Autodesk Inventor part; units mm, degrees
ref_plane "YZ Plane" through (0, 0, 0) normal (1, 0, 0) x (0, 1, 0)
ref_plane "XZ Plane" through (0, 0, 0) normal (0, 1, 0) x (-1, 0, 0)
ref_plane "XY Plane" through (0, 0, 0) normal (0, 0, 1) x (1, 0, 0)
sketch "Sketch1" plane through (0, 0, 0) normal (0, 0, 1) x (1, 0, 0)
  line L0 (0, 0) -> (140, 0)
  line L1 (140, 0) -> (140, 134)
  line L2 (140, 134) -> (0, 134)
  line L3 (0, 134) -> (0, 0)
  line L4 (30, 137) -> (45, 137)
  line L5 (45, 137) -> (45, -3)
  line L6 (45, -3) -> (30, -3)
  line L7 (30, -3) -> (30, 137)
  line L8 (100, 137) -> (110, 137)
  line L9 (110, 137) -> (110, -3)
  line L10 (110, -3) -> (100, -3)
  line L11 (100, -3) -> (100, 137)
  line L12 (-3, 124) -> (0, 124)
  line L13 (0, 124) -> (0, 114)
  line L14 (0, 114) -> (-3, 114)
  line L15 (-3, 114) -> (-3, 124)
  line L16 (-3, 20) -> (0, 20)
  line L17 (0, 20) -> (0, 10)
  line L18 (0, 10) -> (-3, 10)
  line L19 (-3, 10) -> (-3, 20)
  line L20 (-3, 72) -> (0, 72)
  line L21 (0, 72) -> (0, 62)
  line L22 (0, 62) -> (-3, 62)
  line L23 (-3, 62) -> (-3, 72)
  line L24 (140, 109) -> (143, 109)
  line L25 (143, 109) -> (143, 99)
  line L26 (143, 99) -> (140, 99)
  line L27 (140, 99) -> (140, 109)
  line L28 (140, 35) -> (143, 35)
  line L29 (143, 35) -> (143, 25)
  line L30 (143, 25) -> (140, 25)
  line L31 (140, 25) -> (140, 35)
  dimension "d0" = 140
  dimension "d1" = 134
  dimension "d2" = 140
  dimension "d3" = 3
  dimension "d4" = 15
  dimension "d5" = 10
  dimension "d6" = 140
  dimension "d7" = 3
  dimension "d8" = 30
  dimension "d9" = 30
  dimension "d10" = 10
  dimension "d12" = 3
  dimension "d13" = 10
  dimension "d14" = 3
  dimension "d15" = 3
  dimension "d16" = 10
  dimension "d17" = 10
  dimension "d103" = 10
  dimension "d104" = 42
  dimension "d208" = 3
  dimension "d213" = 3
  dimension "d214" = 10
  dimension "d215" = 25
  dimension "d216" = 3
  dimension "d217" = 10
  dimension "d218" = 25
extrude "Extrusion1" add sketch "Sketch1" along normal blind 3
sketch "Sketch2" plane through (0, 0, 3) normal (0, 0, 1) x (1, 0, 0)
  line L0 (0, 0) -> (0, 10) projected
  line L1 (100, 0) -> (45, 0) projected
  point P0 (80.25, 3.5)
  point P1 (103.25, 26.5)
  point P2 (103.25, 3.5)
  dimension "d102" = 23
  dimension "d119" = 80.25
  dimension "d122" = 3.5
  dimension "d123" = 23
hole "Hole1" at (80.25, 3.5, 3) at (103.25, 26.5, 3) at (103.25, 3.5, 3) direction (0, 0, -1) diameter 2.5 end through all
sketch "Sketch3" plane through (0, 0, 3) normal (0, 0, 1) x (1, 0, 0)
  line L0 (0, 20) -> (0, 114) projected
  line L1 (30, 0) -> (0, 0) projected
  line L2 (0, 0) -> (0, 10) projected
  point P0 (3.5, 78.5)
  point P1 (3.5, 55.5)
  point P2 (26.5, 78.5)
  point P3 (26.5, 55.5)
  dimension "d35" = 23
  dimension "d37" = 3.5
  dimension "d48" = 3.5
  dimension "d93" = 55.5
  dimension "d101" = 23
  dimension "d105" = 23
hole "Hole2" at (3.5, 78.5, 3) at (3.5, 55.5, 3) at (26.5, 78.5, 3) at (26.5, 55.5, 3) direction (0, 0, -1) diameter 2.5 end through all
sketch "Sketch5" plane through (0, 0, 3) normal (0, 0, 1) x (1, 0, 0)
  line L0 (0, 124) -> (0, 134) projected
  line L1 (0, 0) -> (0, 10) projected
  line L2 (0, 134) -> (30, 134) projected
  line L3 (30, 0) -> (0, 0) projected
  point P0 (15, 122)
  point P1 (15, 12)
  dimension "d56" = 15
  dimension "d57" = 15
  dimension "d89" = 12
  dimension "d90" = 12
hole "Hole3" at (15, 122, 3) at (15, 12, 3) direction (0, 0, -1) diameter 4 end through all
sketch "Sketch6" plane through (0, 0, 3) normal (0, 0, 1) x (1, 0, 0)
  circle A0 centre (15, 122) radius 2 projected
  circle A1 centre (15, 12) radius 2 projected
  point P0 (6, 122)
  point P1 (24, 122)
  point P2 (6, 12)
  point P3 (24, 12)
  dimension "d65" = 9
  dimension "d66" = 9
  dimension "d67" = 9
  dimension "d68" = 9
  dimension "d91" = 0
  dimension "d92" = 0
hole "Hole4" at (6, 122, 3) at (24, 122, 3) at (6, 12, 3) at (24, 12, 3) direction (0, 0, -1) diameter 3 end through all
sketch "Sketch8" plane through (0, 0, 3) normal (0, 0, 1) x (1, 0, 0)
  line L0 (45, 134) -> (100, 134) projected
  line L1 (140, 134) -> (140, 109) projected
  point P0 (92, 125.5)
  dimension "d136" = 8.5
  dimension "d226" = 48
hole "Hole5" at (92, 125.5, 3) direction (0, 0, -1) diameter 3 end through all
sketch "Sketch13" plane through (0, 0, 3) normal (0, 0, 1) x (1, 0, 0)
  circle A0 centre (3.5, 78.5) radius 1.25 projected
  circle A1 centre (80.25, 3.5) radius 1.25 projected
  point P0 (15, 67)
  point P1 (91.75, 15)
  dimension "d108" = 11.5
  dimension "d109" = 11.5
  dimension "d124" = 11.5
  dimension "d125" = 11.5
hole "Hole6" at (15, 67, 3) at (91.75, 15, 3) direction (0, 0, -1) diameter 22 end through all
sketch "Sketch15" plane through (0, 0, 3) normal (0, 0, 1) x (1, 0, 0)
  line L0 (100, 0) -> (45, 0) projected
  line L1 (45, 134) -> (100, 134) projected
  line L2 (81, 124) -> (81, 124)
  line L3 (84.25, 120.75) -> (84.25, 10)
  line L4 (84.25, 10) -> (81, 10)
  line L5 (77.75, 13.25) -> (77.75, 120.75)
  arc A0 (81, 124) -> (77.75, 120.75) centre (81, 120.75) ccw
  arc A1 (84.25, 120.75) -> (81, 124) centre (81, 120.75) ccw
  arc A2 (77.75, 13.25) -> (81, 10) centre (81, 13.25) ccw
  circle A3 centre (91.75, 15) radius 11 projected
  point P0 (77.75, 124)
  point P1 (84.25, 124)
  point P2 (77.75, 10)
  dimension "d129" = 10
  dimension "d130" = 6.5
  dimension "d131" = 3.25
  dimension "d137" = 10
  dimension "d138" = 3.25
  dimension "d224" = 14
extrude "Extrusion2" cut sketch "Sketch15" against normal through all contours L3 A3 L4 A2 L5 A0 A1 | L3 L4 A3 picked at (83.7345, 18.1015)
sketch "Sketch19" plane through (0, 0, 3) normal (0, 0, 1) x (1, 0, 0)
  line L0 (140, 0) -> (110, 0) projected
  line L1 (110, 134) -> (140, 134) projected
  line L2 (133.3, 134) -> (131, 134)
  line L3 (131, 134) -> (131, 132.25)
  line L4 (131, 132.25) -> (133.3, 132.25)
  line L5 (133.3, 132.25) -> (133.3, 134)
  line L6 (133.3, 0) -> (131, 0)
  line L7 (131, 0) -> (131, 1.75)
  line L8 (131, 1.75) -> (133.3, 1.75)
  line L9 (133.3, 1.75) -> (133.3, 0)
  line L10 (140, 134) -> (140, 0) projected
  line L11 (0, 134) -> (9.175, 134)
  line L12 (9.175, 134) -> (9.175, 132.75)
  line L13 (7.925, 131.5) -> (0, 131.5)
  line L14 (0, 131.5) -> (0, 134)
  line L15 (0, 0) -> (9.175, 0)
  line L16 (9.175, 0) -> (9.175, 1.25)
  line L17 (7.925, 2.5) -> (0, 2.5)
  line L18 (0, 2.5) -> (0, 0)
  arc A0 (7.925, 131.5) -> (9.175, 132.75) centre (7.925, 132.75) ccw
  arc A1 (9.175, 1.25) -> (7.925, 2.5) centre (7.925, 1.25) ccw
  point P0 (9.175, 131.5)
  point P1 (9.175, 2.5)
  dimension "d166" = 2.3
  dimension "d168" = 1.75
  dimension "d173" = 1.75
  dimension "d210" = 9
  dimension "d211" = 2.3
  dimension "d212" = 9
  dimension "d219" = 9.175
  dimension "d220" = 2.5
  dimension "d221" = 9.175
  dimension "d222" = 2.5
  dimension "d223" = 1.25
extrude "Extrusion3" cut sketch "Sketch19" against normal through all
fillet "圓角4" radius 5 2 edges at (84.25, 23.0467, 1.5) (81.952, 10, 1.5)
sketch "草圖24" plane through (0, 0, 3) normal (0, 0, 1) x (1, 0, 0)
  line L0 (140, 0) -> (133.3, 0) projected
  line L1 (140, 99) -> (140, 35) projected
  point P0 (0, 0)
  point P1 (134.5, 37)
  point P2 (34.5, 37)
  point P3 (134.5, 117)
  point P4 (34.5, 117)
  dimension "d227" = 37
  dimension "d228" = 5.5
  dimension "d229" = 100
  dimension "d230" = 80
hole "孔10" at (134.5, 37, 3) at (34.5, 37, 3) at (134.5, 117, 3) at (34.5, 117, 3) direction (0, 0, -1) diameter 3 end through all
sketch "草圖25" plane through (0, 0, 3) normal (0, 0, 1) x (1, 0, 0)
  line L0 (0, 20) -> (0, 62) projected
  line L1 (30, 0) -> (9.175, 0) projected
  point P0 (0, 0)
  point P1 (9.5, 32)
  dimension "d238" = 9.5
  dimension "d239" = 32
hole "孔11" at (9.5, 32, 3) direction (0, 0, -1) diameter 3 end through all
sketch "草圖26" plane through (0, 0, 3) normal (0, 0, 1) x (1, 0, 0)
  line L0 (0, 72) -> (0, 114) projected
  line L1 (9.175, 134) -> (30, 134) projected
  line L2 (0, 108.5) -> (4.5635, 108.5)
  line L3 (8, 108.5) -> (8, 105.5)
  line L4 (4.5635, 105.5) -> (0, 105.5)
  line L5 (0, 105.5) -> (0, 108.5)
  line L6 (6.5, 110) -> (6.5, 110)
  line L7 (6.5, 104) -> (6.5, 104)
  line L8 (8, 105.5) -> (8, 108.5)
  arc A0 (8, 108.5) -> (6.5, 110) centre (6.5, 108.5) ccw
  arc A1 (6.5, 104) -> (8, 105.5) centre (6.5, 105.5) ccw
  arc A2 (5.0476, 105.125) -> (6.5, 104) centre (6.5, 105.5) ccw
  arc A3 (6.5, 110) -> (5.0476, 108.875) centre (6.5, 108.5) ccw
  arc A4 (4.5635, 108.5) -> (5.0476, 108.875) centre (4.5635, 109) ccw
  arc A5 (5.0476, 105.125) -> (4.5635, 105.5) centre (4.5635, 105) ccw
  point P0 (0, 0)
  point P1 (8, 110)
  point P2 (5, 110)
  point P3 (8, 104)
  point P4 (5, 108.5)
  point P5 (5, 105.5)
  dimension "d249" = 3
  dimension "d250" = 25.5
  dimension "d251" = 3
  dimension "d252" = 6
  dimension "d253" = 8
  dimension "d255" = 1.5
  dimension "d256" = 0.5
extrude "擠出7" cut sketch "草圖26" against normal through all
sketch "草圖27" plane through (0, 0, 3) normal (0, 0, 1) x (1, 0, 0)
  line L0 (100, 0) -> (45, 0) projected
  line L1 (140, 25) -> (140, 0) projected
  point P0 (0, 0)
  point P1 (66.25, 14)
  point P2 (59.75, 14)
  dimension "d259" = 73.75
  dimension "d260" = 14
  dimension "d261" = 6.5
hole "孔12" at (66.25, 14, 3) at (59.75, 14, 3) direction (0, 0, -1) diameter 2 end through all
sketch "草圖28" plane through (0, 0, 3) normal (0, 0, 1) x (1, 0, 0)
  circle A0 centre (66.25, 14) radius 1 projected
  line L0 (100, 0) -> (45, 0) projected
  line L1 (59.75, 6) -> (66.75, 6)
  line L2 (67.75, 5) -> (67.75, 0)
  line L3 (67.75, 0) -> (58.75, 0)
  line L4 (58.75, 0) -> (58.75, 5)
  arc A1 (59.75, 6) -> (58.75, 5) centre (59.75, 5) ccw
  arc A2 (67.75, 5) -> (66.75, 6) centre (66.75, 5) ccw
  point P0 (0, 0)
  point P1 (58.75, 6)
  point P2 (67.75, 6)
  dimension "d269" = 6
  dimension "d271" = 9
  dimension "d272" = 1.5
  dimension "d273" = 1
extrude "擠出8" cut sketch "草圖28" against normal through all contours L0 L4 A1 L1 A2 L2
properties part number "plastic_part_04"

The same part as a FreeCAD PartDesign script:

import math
import FreeCAD as App
import Part
import Sketcher

V = App.Vector
Q = App.Units.Quantity


def edges_at(feature, points):
    """Names of the edges that pass closest to the given points."""
    edges = feature.Shape.Edges
    near = lambda p: min(range(len(edges)), key=lambda i: edges[i].distToShape(Part.Vertex(*p))[0])
    return sorted({f"Edge{near(p) + 1}" for p in points})


def add_polygon(sketch, points):
    """Adds a closed chain of lines whose ends are joined by coincident constraints."""
    first, n = sketch.GeometryCount, len(points)
    for a, b in zip(points, points[1:] + points[:1]):
        sketch.addGeometry(Part.LineSegment(App.Vector(*a, 0), App.Vector(*b, 0)), False)
    for i in range(n):
        sketch.addConstraint(Sketcher.Constraint("Coincident", first + i, 2, first + (i + 1) % n, 1))

doc = App.newDocument("Part")
body = doc.addObject("PartDesign::Body", "Body")

sketch1 = body.newObject("Sketcher::SketchObject", "Sketch")
sketch1.AttachmentSupport = (doc.getObject("XY_Plane"), [""])
sketch1.MapMode = "FlatFace"
add_polygon(sketch1, [(0, 10), (0, 0), (30, 0), (30, -3), (45, -3), (45, 0), (100, 0), (100, -3), (110, -3), (110, 0), (140, 0), (140, 25), (143, 25), (143, 35), (140, 35), (140, 99), (143, 99), (143, 109), (140, 109), (140, 134), (110, 134), (110, 137), (100, 137), (100, 134), (45, 134), (45, 137), (30, 137), (30, 134), (0, 134), (0, 124), (-3, 124), (-3, 114), (0, 114), (0, 72), (-3, 72), (-3, 62), (0, 62), (0, 20), (-3, 20), (-3, 10)])
sketch1.addConstraint([
    Sketcher.Constraint("Vertical", 0),
    Sketcher.Constraint("Horizontal", 1),
    Sketcher.Constraint("Vertical", 2),
    Sketcher.Constraint("Horizontal", 3),
    Sketcher.Constraint("Vertical", 4),
    Sketcher.Constraint("Horizontal", 5),
    Sketcher.Constraint("Vertical", 6),
    Sketcher.Constraint("Horizontal", 7),
    Sketcher.Constraint("Vertical", 8),
    Sketcher.Constraint("Horizontal", 9),
    Sketcher.Constraint("Vertical", 10),
    Sketcher.Constraint("Horizontal", 11),
    Sketcher.Constraint("Vertical", 12),
    Sketcher.Constraint("Horizontal", 13),
    Sketcher.Constraint("Vertical", 14),
    Sketcher.Constraint("Horizontal", 15),
    Sketcher.Constraint("Vertical", 16),
    Sketcher.Constraint("Horizontal", 17),
    Sketcher.Constraint("Vertical", 18),
    Sketcher.Constraint("Horizontal", 19),
    Sketcher.Constraint("Vertical", 20),
    Sketcher.Constraint("Horizontal", 21),
    Sketcher.Constraint("Vertical", 22),
    Sketcher.Constraint("Horizontal", 23),
    Sketcher.Constraint("Vertical", 24),
    Sketcher.Constraint("Horizontal", 25),
    Sketcher.Constraint("Vertical", 26),
    Sketcher.Constraint("Horizontal", 27),
    Sketcher.Constraint("Vertical", 28),
    Sketcher.Constraint("Horizontal", 29),
    Sketcher.Constraint("Vertical", 30),
    Sketcher.Constraint("Horizontal", 31),
    Sketcher.Constraint("Vertical", 32),
    Sketcher.Constraint("Horizontal", 33),
    Sketcher.Constraint("Vertical", 34),
    Sketcher.Constraint("Horizontal", 35),
    Sketcher.Constraint("Vertical", 36),
    Sketcher.Constraint("Horizontal", 37),
    Sketcher.Constraint("Vertical", 38),
    Sketcher.Constraint("Horizontal", 39),
    Sketcher.Constraint("Coincident", 0, 2, -1, 1),
    Sketcher.Constraint("PointOnObject", 4, 2, -1),
    Sketcher.Constraint("PointOnObject", 8, 2, -1),
    Sketcher.Constraint("PointOnObject", 27, 2, -2),
    Sketcher.Constraint("PointOnObject", 31, 2, -2),
    Sketcher.Constraint("PointOnObject", 35, 2, -2),
    Sketcher.Constraint("Horizontal", 3, 2, 6, 2),
    Sketcher.Constraint("Horizontal", 19, 2, 22, 2),
    Sketcher.Constraint("Horizontal", 21, 2, 24, 2),
    Sketcher.Constraint("Horizontal", 23, 2, 26, 2),
    Sketcher.Constraint("Vertical", 10, 2, 13, 2),
    Sketcher.Constraint("Vertical", 12, 2, 15, 2),
    Sketcher.Constraint("Vertical", 14, 2, 17, 2),
    Sketcher.Constraint("Vertical", 8, 2, 19, 2),
    Sketcher.Constraint("Vertical", 6, 2, 21, 2),
    Sketcher.Constraint("Vertical", 4, 2, 23, 2),
    Sketcher.Constraint("Vertical", 2, 2, 25, 2),
    Sketcher.Constraint("Vertical", 30, 2, 33, 2),
    Sketcher.Constraint("Vertical", 34, 2, 37, 2),
    Sketcher.Constraint("Equal", 1, 9),
    Sketcher.Constraint("Equal", 17, 29),
    Sketcher.Constraint("Equal", 21, 0),
    Sketcher.Constraint("Equal", 39, 2),
    Sketcher.Constraint("Equal", 0, 12),
    Sketcher.Constraint("Equal", 12, 16),
    Sketcher.Constraint("Equal", 10, 18),
    Sketcher.Constraint("Equal", 8, 20),
    Sketcher.Constraint("Equal", 16, 28),
    Sketcher.Constraint("Equal", 28, 30),
    Sketcher.Constraint("Equal", 30, 34),
    Sketcher.Constraint("Equal", 32, 36),
    Sketcher.Constraint("Equal", 34, 38),
    Sketcher.Constraint("DistanceX", 1, 1, 1, 2, Q("30 mm")),
    Sketcher.Constraint("DistanceX", 3, 1, 3, 2, Q("15 mm")),
    Sketcher.Constraint("DistanceX", 7, 1, 7, 2, Q("10 mm")),
    Sketcher.Constraint("DistanceX", 11, 1, 11, 2, Q("3 mm")),
    Sketcher.Constraint("DistanceY", 10, 1, 10, 2, Q("25 mm")),
    Sketcher.Constraint("DistanceY", 32, 2, 32, 1, Q("42 mm")),
    Sketcher.Constraint("DistanceX", -1, 1, 9, 2, Q("140 mm")),
])
pad1 = body.newObject("PartDesign::Pad", "Pad")
pad1.Profile = sketch1
pad1.Length = 3

sketch2 = body.newObject("Sketcher::SketchObject", "Sketch001")
sketch2.AttachmentSupport = (doc.getObject("XY_Plane"), [""])
sketch2.MapMode = "FlatFace"
sketch2.AttachmentOffset = App.Placement(V(0, 0, 3), App.Rotation())
sketch2.addGeometry([
    Part.Circle(V(80.2, 3.5, 0), V(0, 0, 1), 1.2),
    Part.Circle(V(103.2, 26.5, 0), V(0, 0, 1), 1.2),
    Part.Circle(V(103.2, 3.5, 0), V(0, 0, 1), 1.2),
], False)
sketch2.addConstraint([
    Sketcher.Constraint("Equal", 0, 1),
    Sketcher.Constraint("Equal", 1, 2),
    Sketcher.Constraint("Horizontal", 0, 3, 2, 3),
    Sketcher.Constraint("Vertical", 1, 3, 2, 3),
    Sketcher.Constraint("Diameter", 0, Q("2.5 mm")),
    Sketcher.Constraint("DistanceX", 0, 3, 1, 3, Q("23 mm")),
    Sketcher.Constraint("DistanceY", 0, 3, 1, 3, Q("23 mm")),
    Sketcher.Constraint("DistanceY", -1, 1, 0, 3, Q("3.5 mm")),
    Sketcher.Constraint("DistanceX", -1, 1, 0, 3, Q("80.25 mm")),
])
doc.recompute()
hole = body.newObject("PartDesign::Hole", "Hole")
hole.Profile = sketch2
hole.ThreadType = "None"
hole.Diameter = 2.5
hole.DepthType = "ThroughAll"

sketch3 = body.newObject("Sketcher::SketchObject", "Sketch002")
sketch3.AttachmentSupport = (doc.getObject("XY_Plane"), [""])
sketch3.MapMode = "FlatFace"
sketch3.AttachmentOffset = App.Placement(V(0, 0, 3), App.Rotation())
sketch3.addGeometry([
    Part.Circle(V(3.5, 78.5, 0), V(0, 0, 1), 1.2),
    Part.Circle(V(3.5, 55.5, 0), V(0, 0, 1), 1.2),
    Part.Circle(V(26.5, 78.5, 0), V(0, 0, 1), 1.2),
    Part.Circle(V(26.5, 55.5, 0), V(0, 0, 1), 1.2),
], False)
sketch3.addConstraint([
    Sketcher.Constraint("Equal", 0, 1),
    Sketcher.Constraint("Equal", 1, 2),
    Sketcher.Constraint("Equal", 2, 3),
    Sketcher.Constraint("Horizontal", 0, 3, 2, 3),
    Sketcher.Constraint("Horizontal", 1, 3, 3, 3),
    Sketcher.Constraint("Vertical", 0, 3, 1, 3),
    Sketcher.Constraint("Vertical", 2, 3, 3, 3),
    Sketcher.Constraint("Diameter", 0, Q("2.5 mm")),
    Sketcher.Constraint("DistanceY", 1, 3, 0, 3, Q("23 mm")),
    Sketcher.Constraint("DistanceX", 0, 3, 2, 3, Q("23 mm")),
    Sketcher.Constraint("DistanceX", -1, 1, 0, 3, Q("3.5 mm")),
    Sketcher.Constraint("DistanceY", -1, 1, 0, 3, Q("78.5 mm")),
])
doc.recompute()
hole2 = body.newObject("PartDesign::Hole", "Hole001")
hole2.Profile = sketch3
hole2.ThreadType = "None"
hole2.Diameter = 2.5
hole2.DepthType = "ThroughAll"

sketch4 = body.newObject("Sketcher::SketchObject", "Sketch003")
sketch4.AttachmentSupport = (doc.getObject("XY_Plane"), [""])
sketch4.MapMode = "FlatFace"
sketch4.AttachmentOffset = App.Placement(V(0, 0, 3), App.Rotation())
sketch4.addGeometry([
    Part.Circle(V(15, 122, 0), V(0, 0, 1), 2),
    Part.Circle(V(15, 12, 0), V(0, 0, 1), 2),
], False)
sketch4.addConstraint([
    Sketcher.Constraint("Equal", 0, 1),
    Sketcher.Constraint("Vertical", 0, 3, 1, 3),
    Sketcher.Constraint("Diameter", 0, Q("4 mm")),
    Sketcher.Constraint("DistanceX", -1, 1, 0, 3, Q("15 mm")),
    Sketcher.Constraint("DistanceY", -1, 1, 0, 3, Q("122 mm")),
    Sketcher.Constraint("DistanceY", -1, 1, 1, 3, Q("12 mm")),
])
doc.recompute()
hole3 = body.newObject("PartDesign::Hole", "Hole002")
hole3.Profile = sketch4
hole3.ThreadType = "None"
hole3.Diameter = 4
hole3.DepthType = "ThroughAll"

sketch5 = body.newObject("Sketcher::SketchObject", "Sketch004")
sketch5.AttachmentSupport = (doc.getObject("XY_Plane"), [""])
sketch5.MapMode = "FlatFace"
sketch5.AttachmentOffset = App.Placement(V(0, 0, 3), App.Rotation())
sketch5.addGeometry([
    Part.Circle(V(6, 122, 0), V(0, 0, 1), 1.5),
    Part.Circle(V(24, 122, 0), V(0, 0, 1), 1.5),
    Part.Circle(V(6, 12, 0), V(0, 0, 1), 1.5),
    Part.Circle(V(24, 12, 0), V(0, 0, 1), 1.5),
], False)
sketch5.addConstraint([
    Sketcher.Constraint("Equal", 0, 1),
    Sketcher.Constraint("Equal", 1, 2),
    Sketcher.Constraint("Equal", 2, 3),
    Sketcher.Constraint("Horizontal", 0, 3, 1, 3),
    Sketcher.Constraint("Horizontal", 2, 3, 3, 3),
    Sketcher.Constraint("Vertical", 0, 3, 2, 3),
    Sketcher.Constraint("Vertical", 1, 3, 3, 3),
    Sketcher.Constraint("Diameter", 0, Q("3 mm")),
    Sketcher.Constraint("DistanceX", -1, 1, 0, 3, Q("6 mm")),
    Sketcher.Constraint("DistanceY", -1, 1, 0, 3, Q("122 mm")),
    Sketcher.Constraint("DistanceX", -1, 1, 1, 3, Q("24 mm")),
    Sketcher.Constraint("DistanceY", -1, 1, 2, 3, Q("12 mm")),
])
doc.recompute()
hole4 = body.newObject("PartDesign::Hole", "Hole003")
hole4.Profile = sketch5
hole4.ThreadType = "None"
hole4.Diameter = 3
hole4.DepthType = "ThroughAll"

sketch6 = body.newObject("Sketcher::SketchObject", "Sketch005")
sketch6.AttachmentSupport = (doc.getObject("XY_Plane"), [""])
sketch6.MapMode = "FlatFace"
sketch6.AttachmentOffset = App.Placement(V(0, 0, 3), App.Rotation())
sketch6.addGeometry(Part.Circle(V(92, 125.5, 0), V(0, 0, 1), 1.5), False)
sketch6.addConstraint([
    Sketcher.Constraint("Diameter", 0, Q("3 mm")),
    Sketcher.Constraint("DistanceX", -1, 1, 0, 3, Q("92 mm")),
    Sketcher.Constraint("DistanceY", -1, 1, 0, 3, Q("125.5 mm")),
])
doc.recompute()
hole5 = body.newObject("PartDesign::Hole", "Hole004")
hole5.Profile = sketch6
hole5.ThreadType = "None"
hole5.Diameter = 3
hole5.DepthType = "ThroughAll"

sketch7 = body.newObject("Sketcher::SketchObject", "Sketch006")
sketch7.AttachmentSupport = (doc.getObject("XY_Plane"), [""])
sketch7.MapMode = "FlatFace"
sketch7.AttachmentOffset = App.Placement(V(0, 0, 3), App.Rotation())
sketch7.addGeometry([
    Part.Circle(V(15, 67, 0), V(0, 0, 1), 11),
    Part.Circle(V(92, 15, 0), V(0, 0, 1), 11),
], False)
sketch7.addConstraint([
    Sketcher.Constraint("Equal", 0, 1),
    Sketcher.Constraint("Diameter", 0, Q("22 mm")),
    Sketcher.Constraint("DistanceX", -1, 1, 0, 3, Q("15 mm")),
    Sketcher.Constraint("DistanceY", -1, 1, 0, 3, Q("67 mm")),
    Sketcher.Constraint("DistanceY", -1, 1, 1, 3, Q("15 mm")),
    Sketcher.Constraint("DistanceX", -1, 1, 1, 3, Q("91.75 mm")),
])
doc.recompute()
hole6 = body.newObject("PartDesign::Hole", "Hole005")
hole6.Profile = sketch7
hole6.ThreadType = "None"
hole6.Diameter = 22
hole6.DepthType = "ThroughAll"

sketch8 = body.newObject("Sketcher::SketchObject", "Sketch007")
sketch8.AttachmentSupport = (doc.getObject("XY_Plane"), [""])
sketch8.MapMode = "FlatFace"
sketch8.AttachmentOffset = App.Placement(V(0, 0, 3), App.Rotation())
sketch8.addGeometry([
    Part.ArcOfCircle(Part.Circle(V(81, 120.8, 0), V(0, 0, 1), 3.2), math.radians(0), math.radians(180)),
    Part.LineSegment(V(77.8, 120.8, 0), V(77.8, 13.2, 0)),
    Part.ArcOfCircle(Part.Circle(V(81, 13.2, 0), V(0, 0, 1), 3.2), math.radians(180), math.radians(270)),
    Part.LineSegment(V(81, 10, 0), V(84.2, 10, 0)),
    Part.LineSegment(V(84.2, 10, 0), V(84.2, 120.8, 0)),
], False)
sketch8.addConstraint([
    Sketcher.Constraint("Tangent", 0, 2, 1, 1),
    Sketcher.Constraint("Tangent", 1, 2, 2, 1),
    Sketcher.Constraint("Tangent", 2, 2, 3, 1),
    Sketcher.Constraint("Coincident", 3, 2, 4, 1),
    Sketcher.Constraint("Tangent", 4, 2, 0, 1),
    Sketcher.Constraint("Vertical", 1),
    Sketcher.Constraint("Horizontal", 3),
    Sketcher.Constraint("Vertical", 4),
    Sketcher.Constraint("Equal", 0, 2),
    Sketcher.Constraint("Radius", 0, Q("3.25 mm")),
    Sketcher.Constraint("DistanceY", -1, 1, 2, 2, Q("10 mm")),
    Sketcher.Constraint("DistanceY", 1, 2, 1, 1, Q("107.5 mm")),
    Sketcher.Constraint("DistanceX", -1, 1, 0, 3, Q("81 mm")),
])
pocket1 = body.newObject("PartDesign::Pocket", "Pocket")
pocket1.Profile = sketch8
pocket1.Type = "ThroughAll"

sketch9 = body.newObject("Sketcher::SketchObject", "Sketch008")
sketch9.AttachmentSupport = (doc.getObject("XY_Plane"), [""])
sketch9.MapMode = "FlatFace"
sketch9.AttachmentOffset = App.Placement(V(0, 0, 3), App.Rotation())
add_polygon(sketch9, [(131, 0), (133.3, 0), (133.3, 1.8), (131, 1.8)])
add_polygon(sketch9, [(133.3, 132.2), (133.3, 134), (131, 134), (131, 132.2)])
sketch9.addGeometry(Part.LineSegment(V(9.2, 134, 0), V(0, 134, 0)), False)
sketch9.addGeometry(Part.LineSegment(V(0, 134, 0), V(0, 131.5, 0)), False)
sketch9.addGeometry(Part.LineSegment(V(0, 131.5, 0), V(7.9, 131.5, 0)), False)
sketch9.addGeometry(Part.ArcOfCircle(Part.Circle(V(7.9, 132.8, 0), V(0, 0, 1), 1.2), math.radians(-90), math.radians(0)), False)
sketch9.addGeometry(Part.LineSegment(V(9.2, 132.8, 0), V(9.2, 134, 0)), False)
sketch9.addGeometry(Part.LineSegment(V(0, 2.5, 0), V(0, 0, 0)), False)
sketch9.addGeometry(Part.LineSegment(V(0, 0, 0), V(9.2, 0, 0)), False)
sketch9.addGeometry(Part.LineSegment(V(9.2, 0, 0), V(9.2, 1.2, 0)), False)
sketch9.addGeometry(Part.ArcOfCircle(Part.Circle(V(7.9, 1.2, 0), V(0, 0, 1), 1.3), math.radians(0), math.radians(90)), False)
sketch9.addGeometry(Part.LineSegment(V(7.9, 2.5, 0), V(0, 2.5, 0)), False)
sketch9.addConstraint([
    Sketcher.Constraint("Coincident", 8, 2, 9, 1),
    Sketcher.Constraint("Coincident", 9, 2, 10, 1),
    Sketcher.Constraint("Tangent", 10, 2, 11, 1),
    Sketcher.Constraint("Tangent", 11, 2, 12, 1),
    Sketcher.Constraint("Coincident", 12, 2, 8, 1),
    Sketcher.Constraint("Coincident", 13, 2, 14, 1),
    Sketcher.Constraint("Coincident", 14, 2, 15, 1),
    Sketcher.Constraint("Tangent", 15, 2, 16, 1),
    Sketcher.Constraint("Tangent", 16, 2, 17, 1),
    Sketcher.Constraint("Coincident", 17, 2, 13, 1),
    Sketcher.Constraint("Horizontal", 0),
    Sketcher.Constraint("Vertical", 1),
    Sketcher.Constraint("Horizontal", 2),
    Sketcher.Constraint("Vertical", 3),
    Sketcher.Constraint("Vertical", 4),
    Sketcher.Constraint("Horizontal", 5),
    Sketcher.Constraint("Vertical", 6),
    Sketcher.Constraint("Horizontal", 7),
    Sketcher.Constraint("Horizontal", 8),
    Sketcher.Constraint("Vertical", 9),
    Sketcher.Constraint("Horizontal", 10),
    Sketcher.Constraint("Vertical", 12),
    Sketcher.Constraint("Vertical", 13),
    Sketcher.Constraint("Horizontal", 14),
    Sketcher.Constraint("Vertical", 15),
    Sketcher.Constraint("Horizontal", 17),
    Sketcher.Constraint("Coincident", 13, 2, -1, 1),
    Sketcher.Constraint("Equal", 11, 16),
    Sketcher.Constraint("PointOnObject", 0, 2, -1),
    Sketcher.Constraint("PointOnObject", 8, 2, -2),
    Sketcher.Constraint("Horizontal", 5, 2, 8, 2),
    Sketcher.Constraint("Vertical", 11, 3, 16, 3),
    Sketcher.Constraint("Vertical", 1, 2, 4, 2),
    Sketcher.Constraint("Vertical", 3, 2, 5, 2),
    Sketcher.Constraint("Equal", 3, 4),
    Sketcher.Constraint("Equal", 9, 13),
    Sketcher.Constraint("Radius", 11, Q("1.25 mm")),
    Sketcher.Constraint("DistanceX", 0, 1, 0, 2, Q("2.3 mm")),
    Sketcher.Constraint("DistanceY", 9, 2, 9, 1, Q("2.5 mm")),
    Sketcher.Constraint("DistanceY", 1, 1, 1, 2, Q("1.75 mm")),
    Sketcher.Constraint("DistanceX", 8, 2, 8, 1, Q("9.175 mm")),
    Sketcher.Constraint("DistanceX", -1, 1, 2, 2, Q("131 mm")),
    Sketcher.Constraint("DistanceY", -1, 1, 4, 2, Q("134 mm")),
])
pocket2 = body.newObject("PartDesign::Pocket", "Pocket001")
pocket2.Profile = sketch9
pocket2.Type = "ThroughAll"
doc.recompute()

fillet = body.newObject("PartDesign::Fillet", "Fillet")
fillet.Base = (pocket2, edges_at(pocket2, [(84.25, 23.047, 1.5), (81.952, 10, 1.5)]))
fillet.Radius = 5

sketch10 = body.newObject("Sketcher::SketchObject", "Sketch009")
sketch10.AttachmentSupport = (doc.getObject("XY_Plane"), [""])
sketch10.MapMode = "FlatFace"
sketch10.AttachmentOffset = App.Placement(V(0, 0, 3), App.Rotation())
sketch10.addGeometry([
    Part.Circle(V(134.5, 37, 0), V(0, 0, 1), 1.5),
    Part.Circle(V(34.5, 37, 0), V(0, 0, 1), 1.5),
    Part.Circle(V(134.5, 117, 0), V(0, 0, 1), 1.5),
    Part.Circle(V(34.5, 117, 0), V(0, 0, 1), 1.5),
], False)
sketch10.addConstraint([
    Sketcher.Constraint("Equal", 0, 1),
    Sketcher.Constraint("Equal", 1, 2),
    Sketcher.Constraint("Equal", 2, 3),
    Sketcher.Constraint("Horizontal", 0, 3, 1, 3),
    Sketcher.Constraint("Horizontal", 2, 3, 3, 3),
    Sketcher.Constraint("Vertical", 0, 3, 2, 3),
    Sketcher.Constraint("Vertical", 1, 3, 3, 3),
    Sketcher.Constraint("Diameter", 0, Q("3 mm")),
    Sketcher.Constraint("DistanceY", -1, 1, 0, 3, Q("37 mm")),
    Sketcher.Constraint("DistanceY", -1, 1, 2, 3, Q("117 mm")),
    Sketcher.Constraint("DistanceX", 1, 3, 0, 3, Q("100 mm")),
    Sketcher.Constraint("DistanceX", -1, 1, 0, 3, Q("134.5 mm")),
])
doc.recompute()
hole7 = body.newObject("PartDesign::Hole", "Hole006")
hole7.Profile = sketch10
hole7.ThreadType = "None"
hole7.Diameter = 3
hole7.DepthType = "ThroughAll"

sketch11 = body.newObject("Sketcher::SketchObject", "Sketch010")
sketch11.AttachmentSupport = (doc.getObject("XY_Plane"), [""])
sketch11.MapMode = "FlatFace"
sketch11.AttachmentOffset = App.Placement(V(0, 0, 3), App.Rotation())
sketch11.addGeometry(Part.Circle(V(9.5, 32, 0), V(0, 0, 1), 1.5), False)
sketch11.addConstraint([
    Sketcher.Constraint("Diameter", 0, Q("3 mm")),
    Sketcher.Constraint("DistanceY", -1, 1, 0, 3, Q("32 mm")),
    Sketcher.Constraint("DistanceX", -1, 1, 0, 3, Q("9.5 mm")),
])
doc.recompute()
hole8 = body.newObject("PartDesign::Hole", "Hole007")
hole8.Profile = sketch11
hole8.ThreadType = "None"
hole8.Diameter = 3
hole8.DepthType = "ThroughAll"

sketch12 = body.newObject("Sketcher::SketchObject", "Sketch011")
sketch12.AttachmentSupport = (doc.getObject("XY_Plane"), [""])
sketch12.MapMode = "FlatFace"
sketch12.AttachmentOffset = App.Placement(V(0, 0, 3), App.Rotation())
sketch12.addGeometry([
    Part.LineSegment(V(0, 108.5, 0), V(0, 105.5, 0)),
    Part.LineSegment(V(0, 105.5, 0), V(4.56, 105.5, 0)),
    Part.ArcOfCircle(Part.Circle(V(4.56, 105, 0), V(0, 0, 1), 0.5), math.radians(14), math.radians(90)),
    Part.ArcOfCircle(Part.Circle(V(6.5, 105.5, 0), V(0, 0, 1), 1.5), math.radians(-166), math.radians(-90)),
    Part.ArcOfCircle(Part.Circle(V(6.5, 105.5, 0), V(0, 0, 1), 1.5), math.radians(-90), math.radians(0)),
    Part.LineSegment(V(8, 105.5, 0), V(8, 108.5, 0)),
    Part.ArcOfCircle(Part.Circle(V(6.5, 108.5, 0), V(0, 0, 1), 1.5), math.radians(0), math.radians(90)),
    Part.ArcOfCircle(Part.Circle(V(6.5, 108.5, 0), V(0, 0, 1), 1.5), math.radians(90), math.radians(166)),
    Part.ArcOfCircle(Part.Circle(V(4.56, 109, 0), V(0, 0, 1), 0.5), math.radians(-90), math.radians(-14)),
    Part.LineSegment(V(4.56, 108.5, 0), V(0, 108.5, 0)),
], False)
sketch12.addConstraint([
    Sketcher.Constraint("Coincident", 0, 2, 1, 1),
    Sketcher.Constraint("Tangent", 1, 2, 2, 2),
    Sketcher.Constraint("Tangent", 2, 1, 3, 1),
    Sketcher.Constraint("Tangent", 3, 2, 4, 1),
    Sketcher.Constraint("Tangent", 4, 2, 5, 1),
    Sketcher.Constraint("Tangent", 5, 2, 6, 1),
    Sketcher.Constraint("Tangent", 6, 2, 7, 1),
    Sketcher.Constraint("Tangent", 7, 2, 8, 2),
    Sketcher.Constraint("Tangent", 8, 1, 9, 1),
    Sketcher.Constraint("Coincident", 9, 2, 0, 1),
    Sketcher.Constraint("Vertical", 0),
    Sketcher.Constraint("Horizontal", 1),
    Sketcher.Constraint("Vertical", 5),
    Sketcher.Constraint("Horizontal", 9),
    Sketcher.Constraint("Equal", 3, 4),
    Sketcher.Constraint("Equal", 4, 6),
    Sketcher.Constraint("Equal", 6, 7),
    Sketcher.Constraint("Equal", 2, 8),
    Sketcher.Constraint("PointOnObject", 0, 2, -2),
    Sketcher.Constraint("Horizontal", 4, 3, 0, 2),
    Sketcher.Constraint("Horizontal", 5, 2, 8, 1),
    Sketcher.Constraint("Vertical", 7, 3, 3, 2),
    Sketcher.Constraint("Vertical", 3, 2, 6, 2),
    Sketcher.Constraint("Radius", 2, Q("0.5 mm")),
    Sketcher.Constraint("Radius", 3, Q("1.5 mm")),
    Sketcher.Constraint("DistanceY", 0, 2, 0, 1, Q("3 mm")),
    Sketcher.Constraint("DistanceX", -1, 1, 4, 2, Q("8 mm")),
    Sketcher.Constraint("DistanceY", -1, 1, 2, 3, Q("105 mm")),
])
pocket3 = body.newObject("PartDesign::Pocket", "Pocket002")
pocket3.Profile = sketch12
pocket3.Type = "ThroughAll"

sketch13 = body.newObject("Sketcher::SketchObject", "Sketch012")
sketch13.AttachmentSupport = (doc.getObject("XY_Plane"), [""])
sketch13.MapMode = "FlatFace"
sketch13.AttachmentOffset = App.Placement(V(0, 0, 3), App.Rotation())
sketch13.addGeometry([
    Part.Circle(V(66.2, 14, 0), V(0, 0, 1), 1),
    Part.Circle(V(59.8, 14, 0), V(0, 0, 1), 1),
], False)
sketch13.addConstraint([
    Sketcher.Constraint("Equal", 0, 1),
    Sketcher.Constraint("Horizontal", 0, 3, 1, 3),
    Sketcher.Constraint("Diameter", 0, Q("2 mm")),
    Sketcher.Constraint("DistanceY", -1, 1, 0, 3, Q("14 mm")),
    Sketcher.Constraint("DistanceX", 1, 3, 0, 3, Q("6.5 mm")),
    Sketcher.Constraint("DistanceX", -1, 1, 0, 3, Q("66.25 mm")),
])
doc.recompute()
hole9 = body.newObject("PartDesign::Hole", "Hole008")
hole9.Profile = sketch13
hole9.ThreadType = "None"
hole9.Diameter = 2
hole9.DepthType = "ThroughAll"

sketch14 = body.newObject("Sketcher::SketchObject", "Sketch013")
sketch14.AttachmentSupport = (doc.getObject("XY_Plane"), [""])
sketch14.MapMode = "FlatFace"
sketch14.AttachmentOffset = App.Placement(V(0, 0, 3), App.Rotation())
sketch14.addGeometry([
    Part.LineSegment(V(58.8, 0, 0), V(67.8, 0, 0)),
    Part.LineSegment(V(67.8, 0, 0), V(67.8, 5, 0)),
    Part.ArcOfCircle(Part.Circle(V(66.8, 5, 0), V(0, 0, 1), 1), math.radians(0), math.radians(90)),
    Part.LineSegment(V(66.8, 6, 0), V(59.8, 6, 0)),
    Part.ArcOfCircle(Part.Circle(V(59.8, 5, 0), V(0, 0, 1), 1), math.radians(90), math.radians(180)),
    Part.LineSegment(V(58.8, 5, 0), V(58.8, 0, 0)),
], False)
sketch14.addConstraint([
    Sketcher.Constraint("Coincident", 0, 2, 1, 1),
    Sketcher.Constraint("Tangent", 1, 2, 2, 1),
    Sketcher.Constraint("Tangent", 2, 2, 3, 1),
    Sketcher.Constraint("Tangent", 3, 2, 4, 1),
    Sketcher.Constraint("Tangent", 4, 2, 5, 1),
    Sketcher.Constraint("Coincident", 5, 2, 0, 1),
    Sketcher.Constraint("Horizontal", 0),
    Sketcher.Constraint("Vertical", 1),
    Sketcher.Constraint("Horizontal", 3),
    Sketcher.Constraint("Vertical", 5),
    Sketcher.Constraint("Equal", 2, 4),
    Sketcher.Constraint("PointOnObject", 0, 2, -1),
    Sketcher.Constraint("Radius", 2, Q("1 mm")),
    Sketcher.Constraint("DistanceX", 0, 1, 0, 2, Q("9 mm")),
    Sketcher.Constraint("DistanceY", -1, 1, 2, 2, Q("6 mm")),
    Sketcher.Constraint("DistanceX", -1, 1, 2, 3, Q("66.75 mm")),
])
pocket4 = body.newObject("PartDesign::Pocket", "Pocket003")
pocket4.Profile = sketch14
pocket4.Type = "ThroughAll"

doc.recompute()
